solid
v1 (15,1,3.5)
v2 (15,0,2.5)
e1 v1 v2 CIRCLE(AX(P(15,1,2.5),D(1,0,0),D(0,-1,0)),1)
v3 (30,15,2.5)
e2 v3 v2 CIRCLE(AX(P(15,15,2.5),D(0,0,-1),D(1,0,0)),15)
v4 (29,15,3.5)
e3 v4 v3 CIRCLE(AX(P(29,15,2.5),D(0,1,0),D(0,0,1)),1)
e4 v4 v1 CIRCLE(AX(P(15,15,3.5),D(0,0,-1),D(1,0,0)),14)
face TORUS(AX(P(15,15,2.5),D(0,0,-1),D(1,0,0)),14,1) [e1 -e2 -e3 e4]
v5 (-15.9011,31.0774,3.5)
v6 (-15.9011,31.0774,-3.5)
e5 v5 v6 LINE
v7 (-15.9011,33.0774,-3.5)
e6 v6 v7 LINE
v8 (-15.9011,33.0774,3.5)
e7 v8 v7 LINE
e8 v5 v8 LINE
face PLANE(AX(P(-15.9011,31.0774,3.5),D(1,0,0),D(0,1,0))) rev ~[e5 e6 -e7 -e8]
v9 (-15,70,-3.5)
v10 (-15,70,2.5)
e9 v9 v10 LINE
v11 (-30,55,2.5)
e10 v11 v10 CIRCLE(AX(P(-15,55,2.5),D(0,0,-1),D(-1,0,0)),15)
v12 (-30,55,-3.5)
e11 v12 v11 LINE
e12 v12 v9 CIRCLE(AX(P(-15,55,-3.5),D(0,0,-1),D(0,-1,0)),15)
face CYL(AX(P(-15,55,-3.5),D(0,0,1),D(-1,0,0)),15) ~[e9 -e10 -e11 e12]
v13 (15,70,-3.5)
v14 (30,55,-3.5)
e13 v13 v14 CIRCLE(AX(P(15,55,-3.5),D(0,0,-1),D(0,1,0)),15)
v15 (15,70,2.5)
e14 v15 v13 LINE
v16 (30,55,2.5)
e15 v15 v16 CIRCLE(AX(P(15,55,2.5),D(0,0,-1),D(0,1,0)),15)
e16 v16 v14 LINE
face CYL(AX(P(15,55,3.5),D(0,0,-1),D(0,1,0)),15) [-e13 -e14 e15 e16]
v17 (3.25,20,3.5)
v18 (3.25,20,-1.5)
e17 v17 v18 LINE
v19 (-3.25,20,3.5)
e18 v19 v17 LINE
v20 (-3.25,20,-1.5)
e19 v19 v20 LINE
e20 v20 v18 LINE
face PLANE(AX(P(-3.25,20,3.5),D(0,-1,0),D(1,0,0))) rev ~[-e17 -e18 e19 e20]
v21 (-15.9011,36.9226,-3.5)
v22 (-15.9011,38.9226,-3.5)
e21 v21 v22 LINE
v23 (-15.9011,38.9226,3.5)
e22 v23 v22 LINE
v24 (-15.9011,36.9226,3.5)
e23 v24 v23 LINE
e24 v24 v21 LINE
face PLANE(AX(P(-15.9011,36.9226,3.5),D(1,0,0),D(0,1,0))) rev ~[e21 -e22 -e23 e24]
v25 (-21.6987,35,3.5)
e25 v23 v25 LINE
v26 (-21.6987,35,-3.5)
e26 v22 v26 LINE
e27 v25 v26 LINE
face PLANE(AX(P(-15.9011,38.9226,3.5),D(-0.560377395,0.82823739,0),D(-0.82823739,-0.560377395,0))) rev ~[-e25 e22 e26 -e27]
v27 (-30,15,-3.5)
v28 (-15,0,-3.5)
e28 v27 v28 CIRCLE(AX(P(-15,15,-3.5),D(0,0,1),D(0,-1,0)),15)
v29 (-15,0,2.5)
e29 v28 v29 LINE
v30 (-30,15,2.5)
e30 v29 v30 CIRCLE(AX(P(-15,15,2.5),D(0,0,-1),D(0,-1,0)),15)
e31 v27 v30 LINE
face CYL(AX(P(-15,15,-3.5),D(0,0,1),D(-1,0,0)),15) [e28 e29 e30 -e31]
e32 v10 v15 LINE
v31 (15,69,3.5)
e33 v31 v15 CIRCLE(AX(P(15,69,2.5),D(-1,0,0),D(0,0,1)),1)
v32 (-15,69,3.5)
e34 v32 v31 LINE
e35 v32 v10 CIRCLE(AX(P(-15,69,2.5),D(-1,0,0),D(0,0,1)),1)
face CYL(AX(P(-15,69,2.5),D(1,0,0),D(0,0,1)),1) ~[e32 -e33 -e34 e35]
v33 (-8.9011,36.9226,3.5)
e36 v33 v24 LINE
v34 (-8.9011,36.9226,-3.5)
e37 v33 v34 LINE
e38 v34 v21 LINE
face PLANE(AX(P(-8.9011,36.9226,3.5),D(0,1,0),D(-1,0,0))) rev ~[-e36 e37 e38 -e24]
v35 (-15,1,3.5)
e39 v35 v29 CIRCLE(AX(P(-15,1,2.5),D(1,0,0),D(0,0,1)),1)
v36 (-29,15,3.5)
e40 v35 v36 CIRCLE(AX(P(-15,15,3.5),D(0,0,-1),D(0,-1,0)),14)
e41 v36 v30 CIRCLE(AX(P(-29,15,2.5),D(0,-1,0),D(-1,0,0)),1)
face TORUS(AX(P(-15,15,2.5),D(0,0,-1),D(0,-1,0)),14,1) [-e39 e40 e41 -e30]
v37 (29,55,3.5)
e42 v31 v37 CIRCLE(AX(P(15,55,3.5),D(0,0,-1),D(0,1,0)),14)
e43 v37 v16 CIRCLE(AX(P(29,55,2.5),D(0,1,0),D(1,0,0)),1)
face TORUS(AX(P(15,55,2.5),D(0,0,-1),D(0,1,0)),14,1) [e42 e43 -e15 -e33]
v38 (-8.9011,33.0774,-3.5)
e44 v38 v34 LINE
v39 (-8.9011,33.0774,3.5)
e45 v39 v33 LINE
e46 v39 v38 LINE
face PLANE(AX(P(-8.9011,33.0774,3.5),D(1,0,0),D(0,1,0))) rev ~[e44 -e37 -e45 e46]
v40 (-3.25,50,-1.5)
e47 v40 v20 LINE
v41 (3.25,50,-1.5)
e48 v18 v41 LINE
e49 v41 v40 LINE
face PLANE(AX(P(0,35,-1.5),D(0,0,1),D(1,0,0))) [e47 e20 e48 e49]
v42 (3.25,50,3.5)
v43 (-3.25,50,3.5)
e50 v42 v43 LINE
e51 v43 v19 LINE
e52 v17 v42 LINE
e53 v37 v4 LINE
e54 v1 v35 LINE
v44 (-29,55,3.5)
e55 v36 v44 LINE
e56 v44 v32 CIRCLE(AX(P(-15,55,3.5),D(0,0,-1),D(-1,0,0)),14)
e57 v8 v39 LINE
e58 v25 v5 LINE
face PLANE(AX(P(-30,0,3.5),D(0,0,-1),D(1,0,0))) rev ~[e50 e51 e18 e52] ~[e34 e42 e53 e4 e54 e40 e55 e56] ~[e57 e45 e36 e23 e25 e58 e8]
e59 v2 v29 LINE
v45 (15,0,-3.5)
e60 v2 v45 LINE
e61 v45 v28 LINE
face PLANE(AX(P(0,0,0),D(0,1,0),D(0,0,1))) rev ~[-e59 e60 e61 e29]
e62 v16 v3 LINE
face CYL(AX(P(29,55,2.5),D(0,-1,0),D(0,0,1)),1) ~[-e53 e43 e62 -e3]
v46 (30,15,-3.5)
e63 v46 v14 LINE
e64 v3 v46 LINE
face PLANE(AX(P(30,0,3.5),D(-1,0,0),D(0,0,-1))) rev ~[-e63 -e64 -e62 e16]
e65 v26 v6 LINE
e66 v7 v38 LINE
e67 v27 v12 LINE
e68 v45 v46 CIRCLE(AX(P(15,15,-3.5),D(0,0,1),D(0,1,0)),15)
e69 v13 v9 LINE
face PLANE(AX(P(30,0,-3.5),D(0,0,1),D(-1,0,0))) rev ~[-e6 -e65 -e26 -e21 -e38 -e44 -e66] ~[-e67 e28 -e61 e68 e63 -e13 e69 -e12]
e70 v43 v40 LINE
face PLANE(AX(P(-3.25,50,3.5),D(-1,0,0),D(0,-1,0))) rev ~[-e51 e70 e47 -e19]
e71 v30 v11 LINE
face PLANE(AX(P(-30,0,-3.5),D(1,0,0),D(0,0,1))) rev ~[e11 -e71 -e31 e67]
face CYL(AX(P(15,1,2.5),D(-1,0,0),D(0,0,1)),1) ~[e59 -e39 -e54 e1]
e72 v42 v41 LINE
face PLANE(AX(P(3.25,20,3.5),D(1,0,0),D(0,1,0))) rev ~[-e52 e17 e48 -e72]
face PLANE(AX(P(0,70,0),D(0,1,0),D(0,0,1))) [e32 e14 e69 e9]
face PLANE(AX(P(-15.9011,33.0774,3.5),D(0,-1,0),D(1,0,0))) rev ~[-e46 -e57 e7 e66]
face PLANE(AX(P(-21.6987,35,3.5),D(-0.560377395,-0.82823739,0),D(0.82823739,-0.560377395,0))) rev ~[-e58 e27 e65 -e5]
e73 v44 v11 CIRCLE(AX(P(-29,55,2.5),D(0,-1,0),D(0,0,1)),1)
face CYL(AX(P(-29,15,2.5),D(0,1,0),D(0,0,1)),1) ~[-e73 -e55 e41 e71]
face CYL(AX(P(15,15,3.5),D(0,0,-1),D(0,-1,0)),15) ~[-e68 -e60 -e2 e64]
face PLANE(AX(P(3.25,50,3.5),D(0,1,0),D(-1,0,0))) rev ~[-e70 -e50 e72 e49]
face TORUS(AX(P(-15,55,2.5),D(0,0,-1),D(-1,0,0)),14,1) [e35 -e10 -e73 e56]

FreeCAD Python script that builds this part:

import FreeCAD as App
import Part
import Sketcher

V = App.Vector


def edges_at(feature, points):
    """Names of the edges that pass closest to the given points."""
    edges = feature.Shape.Edges
    near = lambda p: min(range(len(edges)), key=lambda i: edges[i].distToShape(Part.Vertex(*p))[0])
    return sorted({f"Edge{near(p) + 1}" for p in points})

doc = App.newDocument("Part")
body = doc.addObject("PartDesign::Body", "Body")

sketch1 = body.newObject("Sketcher::SketchObject", "Sketch")
sketch1.AttachmentSupport = (doc.getObject("XZ_Plane"), [""])
sketch1.MapMode = "FlatFace"
sketch1.addGeometry([
    Part.LineSegment(V(30, 4, 0), V(-30, 4, 0)),
    Part.LineSegment(V(-30, 4, 0), V(-30, -4, 0)),
    Part.LineSegment(V(-30, -4, 0), V(30, -4, 0)),
    Part.LineSegment(V(30, -4, 0), V(30, 4, 0)),
], False)
sketch1.addConstraint([
    Sketcher.Constraint("Coincident", 0, 2, 1, 1),
    Sketcher.Constraint("Coincident", 1, 2, 2, 1),
    Sketcher.Constraint("Coincident", 2, 2, 3, 1),
    Sketcher.Constraint("Coincident", 3, 2, 0, 1),
    Sketcher.Constraint("Horizontal", 0),
    Sketcher.Constraint("Vertical", 1),
    Sketcher.Constraint("Horizontal", 2),
    Sketcher.Constraint("Vertical", 3),
    Sketcher.Constraint("Symmetric", 0, 2, 2, 2, -1, 1),
    Sketcher.Constraint("DistanceX", 0, 2, -1, 1, 30.0),
    Sketcher.Constraint("DistanceY", 1, 2, 1, 1, 7.0),
])
pad1 = body.newObject("PartDesign::Pad", "Pad")
pad1.Profile = sketch1
pad1.Length = 70
pad1.Reversed = True

sketch2 = body.newObject("Sketcher::SketchObject", "Sketch001")
sketch2.AttachmentSupport = (doc.getObject("XY_Plane"), [""])
sketch2.MapMode = "FlatFace"
sketch2.AttachmentOffset = App.Placement(V(0, 0, 3.5), App.Rotation())
sketch2.addGeometry([
    Part.LineSegment(V(3, 50, 0), V(-3, 50, 0)),
    Part.LineSegment(V(-3, 50, 0), V(-3, 20, 0)),
    Part.LineSegment(V(-3, 20, 0), V(3, 20, 0)),
    Part.LineSegment(V(3, 20, 0), V(3, 50, 0)),
], False)
sketch2.addConstraint([
    Sketcher.Constraint("Coincident", 0, 2, 1, 1),
    Sketcher.Constraint("Coincident", 1, 2, 2, 1),
    Sketcher.Constraint("Coincident", 2, 2, 3, 1),
    Sketcher.Constraint("Coincident", 3, 2, 0, 1),
    Sketcher.Constraint("Horizontal", 0),
    Sketcher.Constraint("Vertical", 1),
    Sketcher.Constraint("Horizontal", 2),
    Sketcher.Constraint("Vertical", 3),
    Sketcher.Constraint("DistanceY", 1, 2, 1, 1, 30.0),
    Sketcher.Constraint("DistanceX", 0, 2, 0, 1, 6.5),
    Sketcher.Constraint("DistanceY", -1, 1, 0, 2, 50.0),
    Sketcher.Constraint("DistanceX", 0, 2, -1, 1, 3.25),
])
pocket1 = body.newObject("PartDesign::Pocket", "Pocket")
pocket1.Profile = sketch2
pocket1.Length = 5
doc.recompute()

fillet = body.newObject("PartDesign::Fillet", "Fillet")
fillet.Base = (pocket1, edges_at(pocket1, [
    (30, 70, 0),
    (-30, 70, 0),
    (-30, 0, 0),
    (30, 0, 0),
]))
fillet.Radius = 15
doc.recompute()

fillet2 = body.newObject("PartDesign::Fillet", "Fillet001")
fillet2.Base = (fillet, edges_at(fillet, [
    (0, 70, 3.5),
    (-30, 35, 3.5),
    (30, 35, 3.5),
    (0, 0, 3.5),
    (-25.607, 4.393, 3.5),
    (25.607, 4.393, 3.5),
    (25.607, 65.607, 3.5),
    (-25.607, 65.607, 3.5),
]))
fillet2.Radius = 1

sketch3 = body.newObject("Sketcher::SketchObject", "Sketch002")
sketch3.AttachmentSupport = (doc.getObject("XY_Plane"), [""])
sketch3.MapMode = "FlatFace"
sketch3.AttachmentOffset = App.Placement(V(0, 0, 3.5), App.Rotation())
sketch3.addGeometry([
    Part.LineSegment(V(-15.9, 33.1, 0), V(-8.9, 33.1, 0)),
    Part.LineSegment(V(-8.9, 33.1, 0), V(-8.9, 36.9, 0)),
    Part.LineSegment(V(-8.9, 36.9, 0), V(-15.9, 36.9, 0)),
    Part.LineSegment(V(-15.9, 36.9, 0), V(-15.9, 38.9, 0)),
    Part.LineSegment(V(-15.9, 38.9, 0), V(-21.7, 35, 0)),
    Part.LineSegment(V(-21.7, 35, 0), V(-15.9, 31.1, 0)),
    Part.LineSegment(V(-15.9, 31.1, 0), V(-15.9, 33.1, 0)),
], False)
sketch3.addConstraint([
    Sketcher.Constraint("Coincident", 0, 2, 1, 1),
    Sketcher.Constraint("Coincident", 1, 2, 2, 1),
    Sketcher.Constraint("Coincident", 2, 2, 3, 1),
    Sketcher.Constraint("Coincident", 3, 2, 4, 1),
    Sketcher.Constraint("Coincident", 4, 2, 5, 1),
    Sketcher.Constraint("Coincident", 5, 2, 6, 1),
    Sketcher.Constraint("Coincident", 6, 2, 0, 1),
    Sketcher.Constraint("Horizontal", 0),
    Sketcher.Constraint("Vertical", 1),
    Sketcher.Constraint("Horizontal", 2),
    Sketcher.Constraint("Vertical", 3),
    Sketcher.Constraint("Vertical", 6),
    Sketcher.Constraint("Vertical", 3, 2, 5, 2),
    Sketcher.Constraint("Equal", 3, 6),
    Sketcher.Constraint("Equal", 4, 5),
    Sketcher.Constraint("DistanceX", 0, 1, 0, 2, 7.0),
    Sketcher.Constraint("DistanceY", 3, 1, 3, 2, 2.0),
    Sketcher.Constraint("Distance", 4, 7.0),
    Sketcher.Constraint("DistanceX", 0, 2, -1, 1, 8.901),
    Sketcher.Constraint("DistanceY", -1, 1, 4, 2, 35.0),
    Sketcher.Constraint("DistanceY", 1, 1, 1, 2, 3.8452),
])
pocket2 = body.newObject("PartDesign::Pocket", "Pocket001")
pocket2.Profile = sketch3
pocket2.Type = "ThroughAll"

doc.recompute()
